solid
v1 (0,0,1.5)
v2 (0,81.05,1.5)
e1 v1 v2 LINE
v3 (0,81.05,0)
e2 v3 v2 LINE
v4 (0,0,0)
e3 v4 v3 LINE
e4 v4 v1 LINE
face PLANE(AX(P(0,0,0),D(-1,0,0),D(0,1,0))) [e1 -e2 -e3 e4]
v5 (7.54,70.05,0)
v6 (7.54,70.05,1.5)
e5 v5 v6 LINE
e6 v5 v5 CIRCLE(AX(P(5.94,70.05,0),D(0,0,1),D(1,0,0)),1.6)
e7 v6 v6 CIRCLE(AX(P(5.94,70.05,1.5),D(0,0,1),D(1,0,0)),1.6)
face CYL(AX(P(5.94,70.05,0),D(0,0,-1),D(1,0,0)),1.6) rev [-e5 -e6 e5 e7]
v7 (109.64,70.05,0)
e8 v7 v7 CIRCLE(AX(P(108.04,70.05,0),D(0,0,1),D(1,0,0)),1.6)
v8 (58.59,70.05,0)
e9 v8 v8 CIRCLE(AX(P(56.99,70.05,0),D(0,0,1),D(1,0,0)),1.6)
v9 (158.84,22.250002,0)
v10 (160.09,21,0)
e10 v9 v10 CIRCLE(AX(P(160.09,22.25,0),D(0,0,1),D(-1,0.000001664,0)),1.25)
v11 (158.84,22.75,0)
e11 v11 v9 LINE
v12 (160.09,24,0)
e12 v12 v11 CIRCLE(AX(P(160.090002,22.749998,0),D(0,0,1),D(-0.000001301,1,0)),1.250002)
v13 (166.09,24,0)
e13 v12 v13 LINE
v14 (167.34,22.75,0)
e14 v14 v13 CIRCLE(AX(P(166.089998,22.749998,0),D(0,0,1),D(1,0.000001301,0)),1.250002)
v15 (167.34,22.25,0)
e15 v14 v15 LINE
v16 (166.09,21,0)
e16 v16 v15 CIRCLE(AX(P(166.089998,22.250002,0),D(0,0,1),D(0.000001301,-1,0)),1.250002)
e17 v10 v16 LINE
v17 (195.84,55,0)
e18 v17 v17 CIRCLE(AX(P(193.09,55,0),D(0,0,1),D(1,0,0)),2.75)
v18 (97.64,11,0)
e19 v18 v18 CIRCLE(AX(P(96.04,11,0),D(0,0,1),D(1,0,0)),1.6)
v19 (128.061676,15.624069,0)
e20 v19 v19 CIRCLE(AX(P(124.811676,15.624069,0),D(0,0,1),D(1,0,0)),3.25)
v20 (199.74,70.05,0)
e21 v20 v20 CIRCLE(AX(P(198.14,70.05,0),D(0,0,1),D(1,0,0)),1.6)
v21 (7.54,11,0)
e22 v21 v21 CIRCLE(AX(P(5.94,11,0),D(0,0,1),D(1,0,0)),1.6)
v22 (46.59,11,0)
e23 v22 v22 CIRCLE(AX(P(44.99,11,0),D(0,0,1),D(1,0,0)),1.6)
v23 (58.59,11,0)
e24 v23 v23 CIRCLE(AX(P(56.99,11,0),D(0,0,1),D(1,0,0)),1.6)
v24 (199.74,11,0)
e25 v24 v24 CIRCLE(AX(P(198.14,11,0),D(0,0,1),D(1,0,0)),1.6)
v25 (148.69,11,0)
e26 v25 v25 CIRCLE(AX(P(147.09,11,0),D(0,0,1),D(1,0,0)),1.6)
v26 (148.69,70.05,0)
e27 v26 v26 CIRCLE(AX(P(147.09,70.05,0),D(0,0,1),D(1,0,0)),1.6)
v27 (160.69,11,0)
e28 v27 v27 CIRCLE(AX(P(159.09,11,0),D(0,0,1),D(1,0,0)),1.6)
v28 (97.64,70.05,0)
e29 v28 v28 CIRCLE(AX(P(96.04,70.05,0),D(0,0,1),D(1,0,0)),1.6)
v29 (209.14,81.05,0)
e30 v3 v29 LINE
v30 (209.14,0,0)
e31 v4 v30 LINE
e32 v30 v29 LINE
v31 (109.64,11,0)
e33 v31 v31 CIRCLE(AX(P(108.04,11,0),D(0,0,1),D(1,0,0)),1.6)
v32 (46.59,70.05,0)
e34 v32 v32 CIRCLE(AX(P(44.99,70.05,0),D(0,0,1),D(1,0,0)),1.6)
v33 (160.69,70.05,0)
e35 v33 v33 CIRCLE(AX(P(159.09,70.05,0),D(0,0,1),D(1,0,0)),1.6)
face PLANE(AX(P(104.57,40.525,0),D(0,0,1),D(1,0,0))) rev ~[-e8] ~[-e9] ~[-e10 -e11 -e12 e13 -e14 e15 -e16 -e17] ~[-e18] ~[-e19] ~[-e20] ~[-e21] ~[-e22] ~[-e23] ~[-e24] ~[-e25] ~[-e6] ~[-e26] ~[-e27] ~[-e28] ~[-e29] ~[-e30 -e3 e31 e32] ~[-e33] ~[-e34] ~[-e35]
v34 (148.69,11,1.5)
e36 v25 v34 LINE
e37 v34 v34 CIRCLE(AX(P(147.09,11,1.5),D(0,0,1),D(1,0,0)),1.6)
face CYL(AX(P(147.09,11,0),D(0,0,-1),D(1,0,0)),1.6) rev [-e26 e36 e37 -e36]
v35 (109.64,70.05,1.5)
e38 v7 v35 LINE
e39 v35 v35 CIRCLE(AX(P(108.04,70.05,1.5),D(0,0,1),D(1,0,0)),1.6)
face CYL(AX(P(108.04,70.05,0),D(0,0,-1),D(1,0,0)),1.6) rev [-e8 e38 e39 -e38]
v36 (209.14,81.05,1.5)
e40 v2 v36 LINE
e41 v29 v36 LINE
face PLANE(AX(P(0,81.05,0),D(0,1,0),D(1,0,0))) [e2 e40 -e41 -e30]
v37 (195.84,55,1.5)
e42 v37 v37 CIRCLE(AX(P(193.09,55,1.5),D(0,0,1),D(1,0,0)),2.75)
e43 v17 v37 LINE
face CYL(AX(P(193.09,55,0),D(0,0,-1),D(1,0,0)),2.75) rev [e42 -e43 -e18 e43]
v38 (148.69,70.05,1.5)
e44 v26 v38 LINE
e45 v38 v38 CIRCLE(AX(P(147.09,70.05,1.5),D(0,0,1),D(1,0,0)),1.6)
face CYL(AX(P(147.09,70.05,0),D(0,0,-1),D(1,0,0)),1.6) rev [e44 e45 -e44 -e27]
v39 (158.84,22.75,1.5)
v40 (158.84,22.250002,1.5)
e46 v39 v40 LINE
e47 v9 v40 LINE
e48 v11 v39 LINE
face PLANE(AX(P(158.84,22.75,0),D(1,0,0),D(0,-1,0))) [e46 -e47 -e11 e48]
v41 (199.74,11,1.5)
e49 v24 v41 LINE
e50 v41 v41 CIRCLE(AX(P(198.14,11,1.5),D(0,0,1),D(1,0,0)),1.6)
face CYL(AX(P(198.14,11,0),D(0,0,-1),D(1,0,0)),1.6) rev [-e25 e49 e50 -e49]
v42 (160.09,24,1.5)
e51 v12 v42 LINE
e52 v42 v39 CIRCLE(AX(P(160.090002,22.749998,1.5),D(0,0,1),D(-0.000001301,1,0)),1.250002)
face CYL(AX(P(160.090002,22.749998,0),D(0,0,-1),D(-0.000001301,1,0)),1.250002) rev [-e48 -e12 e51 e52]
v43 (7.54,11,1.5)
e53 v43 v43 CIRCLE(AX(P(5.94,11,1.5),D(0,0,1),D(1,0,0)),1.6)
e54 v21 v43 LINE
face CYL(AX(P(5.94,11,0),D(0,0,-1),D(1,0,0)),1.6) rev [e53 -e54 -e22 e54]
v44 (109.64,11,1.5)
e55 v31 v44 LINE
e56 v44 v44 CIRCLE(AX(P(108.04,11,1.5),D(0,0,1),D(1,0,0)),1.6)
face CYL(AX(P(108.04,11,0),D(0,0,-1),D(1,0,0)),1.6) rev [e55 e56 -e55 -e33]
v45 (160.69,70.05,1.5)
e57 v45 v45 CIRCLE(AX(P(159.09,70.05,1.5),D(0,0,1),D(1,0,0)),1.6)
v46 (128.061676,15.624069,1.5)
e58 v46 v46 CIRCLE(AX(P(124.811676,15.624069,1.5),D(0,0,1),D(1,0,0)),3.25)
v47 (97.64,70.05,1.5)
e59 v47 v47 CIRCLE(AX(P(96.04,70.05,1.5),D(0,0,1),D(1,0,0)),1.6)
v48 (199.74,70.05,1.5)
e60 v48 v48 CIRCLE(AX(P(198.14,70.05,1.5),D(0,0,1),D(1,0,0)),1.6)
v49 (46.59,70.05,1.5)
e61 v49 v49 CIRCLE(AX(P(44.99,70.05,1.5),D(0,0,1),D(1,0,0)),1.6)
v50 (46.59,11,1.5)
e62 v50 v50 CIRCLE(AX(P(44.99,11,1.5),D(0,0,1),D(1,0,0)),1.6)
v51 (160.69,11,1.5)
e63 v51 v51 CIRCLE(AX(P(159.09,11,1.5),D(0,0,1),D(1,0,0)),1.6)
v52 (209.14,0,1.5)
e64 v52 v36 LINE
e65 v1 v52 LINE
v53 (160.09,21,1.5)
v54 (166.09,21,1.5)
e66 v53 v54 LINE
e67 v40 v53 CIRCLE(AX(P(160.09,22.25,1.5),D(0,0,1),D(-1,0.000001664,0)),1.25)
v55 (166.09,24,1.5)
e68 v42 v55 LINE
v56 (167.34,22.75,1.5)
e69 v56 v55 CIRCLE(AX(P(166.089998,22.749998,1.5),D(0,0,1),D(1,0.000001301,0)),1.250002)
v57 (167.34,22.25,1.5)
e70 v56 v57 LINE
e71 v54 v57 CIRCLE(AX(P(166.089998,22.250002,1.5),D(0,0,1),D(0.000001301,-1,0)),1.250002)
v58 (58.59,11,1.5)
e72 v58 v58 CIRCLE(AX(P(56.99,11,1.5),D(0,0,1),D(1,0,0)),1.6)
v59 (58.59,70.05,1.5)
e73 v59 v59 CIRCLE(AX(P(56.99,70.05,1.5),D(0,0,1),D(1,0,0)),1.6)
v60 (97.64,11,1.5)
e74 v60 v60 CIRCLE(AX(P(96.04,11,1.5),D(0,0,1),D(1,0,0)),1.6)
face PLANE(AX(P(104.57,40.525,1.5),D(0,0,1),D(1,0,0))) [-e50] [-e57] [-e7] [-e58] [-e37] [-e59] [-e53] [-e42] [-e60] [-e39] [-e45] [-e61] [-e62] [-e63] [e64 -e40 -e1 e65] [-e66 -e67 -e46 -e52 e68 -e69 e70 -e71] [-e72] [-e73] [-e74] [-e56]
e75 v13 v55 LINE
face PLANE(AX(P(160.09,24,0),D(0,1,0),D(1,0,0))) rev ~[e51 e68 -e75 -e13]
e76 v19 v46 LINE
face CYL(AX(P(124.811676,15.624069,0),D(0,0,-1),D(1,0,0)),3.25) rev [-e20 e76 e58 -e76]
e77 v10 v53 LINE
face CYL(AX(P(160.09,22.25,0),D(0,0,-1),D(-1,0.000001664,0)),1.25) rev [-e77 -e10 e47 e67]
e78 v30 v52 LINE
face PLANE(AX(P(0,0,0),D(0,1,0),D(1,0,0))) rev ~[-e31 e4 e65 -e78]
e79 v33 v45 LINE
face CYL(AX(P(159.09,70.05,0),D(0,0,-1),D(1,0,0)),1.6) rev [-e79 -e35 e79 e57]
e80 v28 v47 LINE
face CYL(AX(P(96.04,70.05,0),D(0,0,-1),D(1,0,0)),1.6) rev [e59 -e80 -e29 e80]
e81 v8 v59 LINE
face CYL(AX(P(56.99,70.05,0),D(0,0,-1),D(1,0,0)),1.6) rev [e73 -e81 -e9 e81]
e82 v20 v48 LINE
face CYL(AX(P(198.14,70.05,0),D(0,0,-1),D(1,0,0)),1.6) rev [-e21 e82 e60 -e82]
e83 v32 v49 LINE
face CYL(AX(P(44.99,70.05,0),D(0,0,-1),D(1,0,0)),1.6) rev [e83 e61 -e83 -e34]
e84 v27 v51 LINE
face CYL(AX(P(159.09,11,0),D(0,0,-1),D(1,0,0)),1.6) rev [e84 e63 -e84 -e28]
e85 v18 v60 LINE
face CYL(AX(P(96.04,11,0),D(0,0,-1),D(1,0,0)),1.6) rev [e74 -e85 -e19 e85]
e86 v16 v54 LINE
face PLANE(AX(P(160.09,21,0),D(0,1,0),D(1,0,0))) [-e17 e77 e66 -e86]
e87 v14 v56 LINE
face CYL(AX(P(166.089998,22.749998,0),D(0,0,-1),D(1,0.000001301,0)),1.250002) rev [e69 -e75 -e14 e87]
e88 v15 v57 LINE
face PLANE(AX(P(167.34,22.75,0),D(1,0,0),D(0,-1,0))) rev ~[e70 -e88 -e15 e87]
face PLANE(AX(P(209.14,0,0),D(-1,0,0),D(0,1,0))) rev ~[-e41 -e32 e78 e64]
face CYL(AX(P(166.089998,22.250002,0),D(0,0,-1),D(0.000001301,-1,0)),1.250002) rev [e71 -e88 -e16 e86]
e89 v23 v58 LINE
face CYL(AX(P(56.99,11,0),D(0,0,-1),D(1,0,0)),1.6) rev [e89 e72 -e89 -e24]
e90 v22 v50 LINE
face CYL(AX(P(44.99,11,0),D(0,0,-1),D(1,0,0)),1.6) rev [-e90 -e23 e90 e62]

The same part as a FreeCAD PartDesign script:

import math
import FreeCAD as App
import Part
import Sketcher


def add_polygon(sketch, points):
    """Adds a closed chain of lines whose ends are joined by coincident constraints."""
    first, n = sketch.GeometryCount, len(points)
    for a, b in zip(points, points[1:] + points[:1]):
        sketch.addGeometry(Part.LineSegment(App.Vector(*a, 0), App.Vector(*b, 0)), False)
    for i in range(n):
        sketch.addConstraint(Sketcher.Constraint("Coincident", first + i, 2, first + (i + 1) % n, 1))

doc = App.newDocument("Part")
body = doc.addObject("PartDesign::Body", "Body")

# Sketch on XY plane
sketch1 = body.newObject("Sketcher::SketchObject", "Sketch")
sketch1.AttachmentSupport = (doc.getObject("XY_Plane"), [""])
sketch1.MapMode = "FlatFace"
add_polygon(sketch1, [(0, 81.05), (0, 0), (209.14, 0), (209.14, 81.05)])  # lines 0-3
sketch1.addGeometry(Part.Circle(App.Vector(5.94, 11, 0), App.Vector(0, 0, 1), 1.6), False)  # 4
sketch1.addGeometry(Part.Circle(App.Vector(44.99, 11, 0), App.Vector(0, 0, 1), 1.6), False)  # 5
sketch1.addGeometry(Part.Circle(App.Vector(56.99, 11, 0), App.Vector(0, 0, 1), 1.6), False)  # 6
sketch1.addGeometry(Part.Circle(App.Vector(96.04, 11, 0), App.Vector(0, 0, 1), 1.6), False)  # 7
sketch1.addGeometry(Part.Circle(App.Vector(108.04, 11, 0), App.Vector(0, 0, 1), 1.6), False)  # 8
sketch1.addGeometry(Part.Circle(App.Vector(124.81, 15.62, 0), App.Vector(0, 0, 1), 3.25), False)  # 9
sketch1.addGeometry(Part.Circle(App.Vector(147.09, 11, 0), App.Vector(0, 0, 1), 1.6), False)  # 10
sketch1.addGeometry(Part.Circle(App.Vector(159.09, 11, 0), App.Vector(0, 0, 1), 1.6), False)  # 11
sketch1.addGeometry(Part.Circle(App.Vector(198.14, 11, 0), App.Vector(0, 0, 1), 1.6), False)  # 12
sketch1.addGeometry(Part.LineSegment(App.Vector(166.09, 21, 0), App.Vector(160.09, 21, 0)), False)  # 13
sketch1.addGeometry(Part.ArcOfCircle(Part.Circle(App.Vector(160.09, 22.25, 0), App.Vector(0, 0, 1), 1.25), math.radians(180), math.radians(270)), False)  # 14
sketch1.addGeometry(Part.LineSegment(App.Vector(158.84, 22.25, 0), App.Vector(158.84, 22.75, 0)), False)  # 15
sketch1.addGeometry(Part.ArcOfCircle(Part.Circle(App.Vector(160.09, 22.75, 0), App.Vector(0, 0, 1), 1.25), math.radians(90), math.radians(180)), False)  # 16
sketch1.addGeometry(Part.LineSegment(App.Vector(160.09, 24, 0), App.Vector(166.09, 24, 0)), False)  # 17
sketch1.addGeometry(Part.ArcOfCircle(Part.Circle(App.Vector(166.09, 22.75, 0), App.Vector(0, 0, 1), 1.25), math.radians(0), math.radians(90)), False)  # 18
sketch1.addGeometry(Part.LineSegment(App.Vector(167.34, 22.75, 0), App.Vector(167.34, 22.25, 0)), False)  # 19
sketch1.addGeometry(Part.ArcOfCircle(Part.Circle(App.Vector(166.09, 22.25, 0), App.Vector(0, 0, 1), 1.25), math.radians(-90), math.radians(0)), False)  # 20
sketch1.addGeometry(Part.Circle(App.Vector(5.94, 70.05, 0), App.Vector(0, 0, 1), 1.6), False)  # 21
sketch1.addGeometry(Part.Circle(App.Vector(44.99, 70.05, 0), App.Vector(0, 0, 1), 1.6), False)  # 22
sketch1.addGeometry(Part.Circle(App.Vector(56.99, 70.05, 0), App.Vector(0, 0, 1), 1.6), False)  # 23
sketch1.addGeometry(Part.Circle(App.Vector(96.04, 70.05, 0), App.Vector(0, 0, 1), 1.6), False)  # 24
sketch1.addGeometry(Part.Circle(App.Vector(193.09, 55, 0), App.Vector(0, 0, 1), 2.75), False)  # 25
sketch1.addGeometry(Part.Circle(App.Vector(108.04, 70.05, 0), App.Vector(0, 0, 1), 1.6), False)  # 26
sketch1.addGeometry(Part.Circle(App.Vector(147.09, 70.05, 0), App.Vector(0, 0, 1), 1.6), False)  # 27
sketch1.addGeometry(Part.Circle(App.Vector(159.09, 70.05, 0), App.Vector(0, 0, 1), 1.6), False)  # 28
sketch1.addGeometry(Part.Circle(App.Vector(198.14, 70.05, 0), App.Vector(0, 0, 1), 1.6), False)  # 29
sketch1.addConstraint(Sketcher.Constraint("Tangent", 13, 2, 14, 2))
sketch1.addConstraint(Sketcher.Constraint("Tangent", 14, 1, 15, 1))
sketch1.addConstraint(Sketcher.Constraint("Tangent", 15, 2, 16, 2))
sketch1.addConstraint(Sketcher.Constraint("Tangent", 16, 1, 17, 1))
sketch1.addConstraint(Sketcher.Constraint("Tangent", 17, 2, 18, 2))
sketch1.addConstraint(Sketcher.Constraint("Tangent", 18, 1, 19, 1))
sketch1.addConstraint(Sketcher.Constraint("Tangent", 19, 2, 20, 2))
sketch1.addConstraint(Sketcher.Constraint("Tangent", 20, 1, 13, 1))
sketch1.addConstraint(Sketcher.Constraint("Vertical", 0))
sketch1.addConstraint(Sketcher.Constraint("Horizontal", 1))
sketch1.addConstraint(Sketcher.Constraint("Vertical", 2))
sketch1.addConstraint(Sketcher.Constraint("Horizontal", 3))
sketch1.addConstraint(Sketcher.Constraint("Horizontal", 13))
sketch1.addConstraint(Sketcher.Constraint("Vertical", 15))
sketch1.addConstraint(Sketcher.Constraint("Horizontal", 17))
sketch1.addConstraint(Sketcher.Constraint("Vertical", 19))
sketch1.addConstraint(Sketcher.Constraint("Coincident", 0, 2, -1, 1))
sketch1.addConstraint(Sketcher.Constraint("Equal", 4, 5))
sketch1.addConstraint(Sketcher.Constraint("Equal", 5, 6))
sketch1.addConstraint(Sketcher.Constraint("Equal", 6, 7))
sketch1.addConstraint(Sketcher.Constraint("Equal", 7, 8))
sketch1.addConstraint(Sketcher.Constraint("Equal", 8, 10))
sketch1.addConstraint(Sketcher.Constraint("Equal", 10, 11))
sketch1.addConstraint(Sketcher.Constraint("Equal", 11, 12))
sketch1.addConstraint(Sketcher.Constraint("Equal", 14, 16))
sketch1.addConstraint(Sketcher.Constraint("Equal", 16, 18))
sketch1.addConstraint(Sketcher.Constraint("Equal", 18, 20))
sketch1.addConstraint(Sketcher.Constraint("Equal", 12, 21))
sketch1.addConstraint(Sketcher.Constraint("Equal", 21, 22))
sketch1.addConstraint(Sketcher.Constraint("Equal", 22, 23))
sketch1.addConstraint(Sketcher.Constraint("Equal", 23, 24))
sketch1.addConstraint(Sketcher.Constraint("Equal", 24, 26))
sketch1.addConstraint(Sketcher.Constraint("Equal", 26, 27))
sketch1.addConstraint(Sketcher.Constraint("Equal", 27, 28))
sketch1.addConstraint(Sketcher.Constraint("Equal", 28, 29))
sketch1.addConstraint(Sketcher.Constraint("Horizontal", 4, 3, 5, 3))
sketch1.addConstraint(Sketcher.Constraint("Horizontal", 5, 3, 6, 3))
sketch1.addConstraint(Sketcher.Constraint("Horizontal", 6, 3, 7, 3))
sketch1.addConstraint(Sketcher.Constraint("Horizontal", 7, 3, 8, 3))
sketch1.addConstraint(Sketcher.Constraint("Horizontal", 8, 3, 10, 3))
sketch1.addConstraint(Sketcher.Constraint("Horizontal", 10, 3, 11, 3))
sketch1.addConstraint(Sketcher.Constraint("Horizontal", 11, 3, 12, 3))
sketch1.addConstraint(Sketcher.Constraint("Horizontal", 21, 3, 22, 3))
sketch1.addConstraint(Sketcher.Constraint("Horizontal", 22, 3, 23, 3))
sketch1.addConstraint(Sketcher.Constraint("Horizontal", 23, 3, 24, 3))
sketch1.addConstraint(Sketcher.Constraint("Horizontal", 24, 3, 26, 3))
sketch1.addConstraint(Sketcher.Constraint("Horizontal", 26, 3, 27, 3))
sketch1.addConstraint(Sketcher.Constraint("Horizontal", 27, 3, 28, 3))
sketch1.addConstraint(Sketcher.Constraint("Horizontal", 28, 3, 29, 3))
sketch1.addConstraint(Sketcher.Constraint("Vertical", 4, 3, 21, 3))
sketch1.addConstraint(Sketcher.Constraint("Vertical", 5, 3, 22, 3))
sketch1.addConstraint(Sketcher.Constraint("Vertical", 6, 3, 23, 3))
sketch1.addConstraint(Sketcher.Constraint("Vertical", 7, 3, 24, 3))
sketch1.addConstraint(Sketcher.Constraint("Vertical", 8, 3, 26, 3))
sketch1.addConstraint(Sketcher.Constraint("Vertical", 10, 3, 27, 3))
sketch1.addConstraint(Sketcher.Constraint("Vertical", 11, 3, 28, 3))
sketch1.addConstraint(Sketcher.Constraint("Vertical", 12, 3, 29, 3))
sketch1.addConstraint(Sketcher.Constraint("Diameter", 4, 3.2))
sketch1.addConstraint(Sketcher.Constraint("Diameter", 9, 6.5))
sketch1.addConstraint(Sketcher.Constraint("Diameter", 25, 5.5))
sketch1.addConstraint(Sketcher.Constraint("DistanceX", 13, 2, 13, 1, 6.0))
sketch1.addConstraint(Sketcher.Constraint("Radius", 14, 1.25))
sketch1.addConstraint(Sketcher.Constraint("DistanceY", 15, 1, 15, 2, 0.499998))
sketch1.addConstraint(Sketcher.Constraint("DistanceY", -1, 1, 4, 3, 11.0))
sketch1.addConstraint(Sketcher.Constraint("DistanceY", -1, 1, 25, 3, 55.0))
sketch1.addConstraint(Sketcher.Constraint("DistanceY", -1, 1, 13, 2, 21.0))
sketch1.addConstraint(Sketcher.Constraint("DistanceX", 5, 3, 6, 3, 12.0))
sketch1.addConstraint(Sketcher.Constraint("DistanceX", 7, 3, 8, 3, 12.0))
sketch1.addConstraint(Sketcher.Constraint("DistanceX", 10, 3, 11, 3, 12.0))
sketch1.addConstraint(Sketcher.Constraint("DistanceX", 11, 3, 14, 3, 1.0))
sketch1.addConstraint(Sketcher.Constraint("DistanceX", 18, 3, 25, 3, 27.000002))
sketch1.addConstraint(Sketcher.Constraint("DistanceX", 12, 3, 1, 2, 11.0))
sketch1.addConstraint(Sketcher.Constraint("DistanceY", 29, 3, 2, 2, 11.0))
sketch1.addConstraint(Sketcher.Constraint("DistanceX", 1, 1, 1, 2, 209.14))
sketch1.addConstraint(Sketcher.Constraint("DistanceY", 0, 2, 0, 1, 81.05))
sketch1.addConstraint(Sketcher.Constraint("DistanceX", 4, 3, 7, 3, 90.1))
sketch1.addConstraint(Sketcher.Constraint("DistanceX", 6, 3, 10, 3, 90.1))
sketch1.addConstraint(Sketcher.Constraint("DistanceX", 8, 3, 12, 3, 90.1))
sketch1.addConstraint(Sketcher.Constraint("DistanceX", -1, 1, 5, 3, 44.99))
sketch1.addConstraint(Sketcher.Constraint("DistanceY", -1, 1, 9, 3, 15.624069))
sketch1.addConstraint(Sketcher.Constraint("DistanceX", -1, 1, 9, 3, 124.811676))
pad1 = body.newObject("PartDesign::Pad", "Pad")
pad1.Profile = sketch1
pad1.Length = 1.5

doc.recompute()
